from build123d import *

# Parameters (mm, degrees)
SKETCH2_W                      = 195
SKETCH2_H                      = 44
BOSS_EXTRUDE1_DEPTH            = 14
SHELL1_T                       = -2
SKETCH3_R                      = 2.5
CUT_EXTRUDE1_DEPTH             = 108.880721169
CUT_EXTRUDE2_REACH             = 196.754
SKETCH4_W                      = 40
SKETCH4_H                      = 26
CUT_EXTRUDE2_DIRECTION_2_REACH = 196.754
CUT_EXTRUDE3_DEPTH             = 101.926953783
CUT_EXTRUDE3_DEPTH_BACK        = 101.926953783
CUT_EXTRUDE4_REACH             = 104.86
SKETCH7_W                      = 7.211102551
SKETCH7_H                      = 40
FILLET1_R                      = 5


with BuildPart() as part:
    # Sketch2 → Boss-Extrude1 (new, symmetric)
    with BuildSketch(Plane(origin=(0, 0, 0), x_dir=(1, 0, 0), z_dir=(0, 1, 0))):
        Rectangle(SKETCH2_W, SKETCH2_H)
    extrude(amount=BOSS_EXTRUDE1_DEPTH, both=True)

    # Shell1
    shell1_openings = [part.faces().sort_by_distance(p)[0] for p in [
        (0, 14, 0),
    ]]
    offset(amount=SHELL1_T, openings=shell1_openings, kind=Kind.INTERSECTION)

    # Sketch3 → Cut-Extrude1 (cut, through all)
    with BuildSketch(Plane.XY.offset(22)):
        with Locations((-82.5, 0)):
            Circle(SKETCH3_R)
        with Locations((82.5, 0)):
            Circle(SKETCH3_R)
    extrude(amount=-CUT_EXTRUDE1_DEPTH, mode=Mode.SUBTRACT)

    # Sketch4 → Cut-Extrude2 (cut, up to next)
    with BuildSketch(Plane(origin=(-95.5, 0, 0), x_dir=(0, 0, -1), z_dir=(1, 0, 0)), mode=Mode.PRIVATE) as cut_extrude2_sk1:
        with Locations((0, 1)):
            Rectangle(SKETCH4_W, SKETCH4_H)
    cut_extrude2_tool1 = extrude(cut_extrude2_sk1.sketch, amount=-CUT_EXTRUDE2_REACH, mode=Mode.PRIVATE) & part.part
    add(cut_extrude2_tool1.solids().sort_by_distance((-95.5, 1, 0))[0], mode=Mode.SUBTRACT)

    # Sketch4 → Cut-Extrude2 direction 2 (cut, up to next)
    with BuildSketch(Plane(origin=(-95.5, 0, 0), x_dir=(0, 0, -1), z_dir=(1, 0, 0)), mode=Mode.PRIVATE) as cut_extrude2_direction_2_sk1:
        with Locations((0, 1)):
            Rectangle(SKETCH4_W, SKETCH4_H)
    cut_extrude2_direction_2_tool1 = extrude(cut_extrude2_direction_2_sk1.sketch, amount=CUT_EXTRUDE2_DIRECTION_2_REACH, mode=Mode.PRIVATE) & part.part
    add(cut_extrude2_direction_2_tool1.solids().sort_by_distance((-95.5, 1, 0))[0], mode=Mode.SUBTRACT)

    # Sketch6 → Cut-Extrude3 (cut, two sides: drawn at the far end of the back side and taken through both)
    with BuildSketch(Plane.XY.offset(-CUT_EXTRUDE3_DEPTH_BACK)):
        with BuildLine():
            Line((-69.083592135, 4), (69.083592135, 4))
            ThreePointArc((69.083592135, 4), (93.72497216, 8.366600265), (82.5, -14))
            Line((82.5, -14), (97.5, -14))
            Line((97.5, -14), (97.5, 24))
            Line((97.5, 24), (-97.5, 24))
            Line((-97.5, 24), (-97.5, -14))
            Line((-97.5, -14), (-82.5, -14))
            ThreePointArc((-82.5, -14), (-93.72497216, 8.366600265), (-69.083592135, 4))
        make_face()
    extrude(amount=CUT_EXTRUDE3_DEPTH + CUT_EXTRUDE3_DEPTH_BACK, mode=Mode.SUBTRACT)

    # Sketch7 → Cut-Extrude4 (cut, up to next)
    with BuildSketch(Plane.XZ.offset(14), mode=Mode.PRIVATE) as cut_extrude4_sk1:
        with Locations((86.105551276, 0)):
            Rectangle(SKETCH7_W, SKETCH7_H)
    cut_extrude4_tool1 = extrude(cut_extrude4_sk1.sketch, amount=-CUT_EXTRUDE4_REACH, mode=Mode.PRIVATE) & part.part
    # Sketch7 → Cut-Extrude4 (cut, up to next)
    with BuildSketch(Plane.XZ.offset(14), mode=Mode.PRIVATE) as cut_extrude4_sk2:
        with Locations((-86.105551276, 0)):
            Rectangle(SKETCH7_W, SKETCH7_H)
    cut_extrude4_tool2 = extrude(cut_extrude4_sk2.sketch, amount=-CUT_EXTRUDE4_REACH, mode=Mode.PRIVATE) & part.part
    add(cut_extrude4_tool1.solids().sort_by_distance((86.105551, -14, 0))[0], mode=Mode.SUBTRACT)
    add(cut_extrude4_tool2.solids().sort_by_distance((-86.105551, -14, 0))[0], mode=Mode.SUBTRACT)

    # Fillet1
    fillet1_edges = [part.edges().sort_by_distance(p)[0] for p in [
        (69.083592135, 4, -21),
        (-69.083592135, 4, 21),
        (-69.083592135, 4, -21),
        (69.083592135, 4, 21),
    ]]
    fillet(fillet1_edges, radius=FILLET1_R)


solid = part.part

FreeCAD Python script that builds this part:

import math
import FreeCAD as App
import Part
import Sketcher


def edges_at(feature, points):
    """Names of the edges that pass closest to the given points."""
    edges = feature.Shape.Edges
    near = lambda p: min(range(len(edges)), key=lambda i: edges[i].distToShape(Part.Vertex(*p))[0])
    return sorted({f"Edge{near(p) + 1}" for p in points})


def faces_at(feature, points):
    """Names of the faces that lie closest to the given points."""
    faces = feature.Shape.Faces
    near = lambda p: min(range(len(faces)), key=lambda i: faces[i].distToShape(Part.Vertex(*p))[0])
    return sorted({f"Face{near(p) + 1}" for p in points})

doc = App.newDocument("Part")
body = doc.addObject("PartDesign::Body", "Body")

# Sketch on XZ plane
sketch1 = body.newObject("Sketcher::SketchObject", "Sketch")
sketch1.AttachmentSupport = (doc.getObject("XZ_Plane"), [""])
sketch1.MapMode = "FlatFace"
sketch1.addGeometry([
    Part.LineSegment(App.Vector(-97.5, -22, 0), App.Vector(-97.5, 22, 0)),
    Part.LineSegment(App.Vector(-97.5, 22, 0), App.Vector(97.5, 22, 0)),
    Part.LineSegment(App.Vector(97.5, 22, 0), App.Vector(97.5, -22, 0)),
    Part.LineSegment(App.Vector(97.5, -22, 0), App.Vector(-97.5, -22, 0)),
], False)
sketch1.addConstraint([
    Sketcher.Constraint("Coincident", 0, 2, 1, 1),
    Sketcher.Constraint("Coincident", 1, 2, 2, 1),
    Sketcher.Constraint("Coincident", 2, 2, 3, 1),
    Sketcher.Constraint("Coincident", 3, 2, 0, 1),
    Sketcher.Constraint("Vertical", 0),
    Sketcher.Constraint("Horizontal", 1),
    Sketcher.Constraint("Vertical", 2),
    Sketcher.Constraint("Horizontal", 3),
    Sketcher.Constraint("Symmetric", 0, 2, 2, 2, -1, 1),
    Sketcher.Constraint("DistanceX", 1, 1, 1, 2, 195.0),
    Sketcher.Constraint("DistanceY", 0, 1, 0, 2, 44.0),
])
pad1 = body.newObject("PartDesign::Pad", "Pad")
pad1.Profile = sketch1
pad1.Length = 28
pad1.Midplane = True
doc.recompute()

thickness = body.newObject("PartDesign::Thickness", "Thickness")
thickness.Base = (pad1, faces_at(pad1, [(0, 14, 0)]))
thickness.Value = 2
thickness.Reversed = True
thickness.Join = "Intersection"

# Sketch on XY plane
sketch2 = body.newObject("Sketcher::SketchObject", "Sketch001")
sketch2.AttachmentSupport = (doc.getObject("XY_Plane"), [""])
sketch2.MapMode = "FlatFace"
sketch2.AttachmentOffset = App.Placement(App.Vector(0, 0, 22), App.Rotation())
sketch2.addGeometry([
    Part.Circle(App.Vector(-82.5, 0, 0), App.Vector(0, 0, 1), 2.5),
    Part.Circle(App.Vector(82.5, 0, 0), App.Vector(0, 0, 1), 2.5),
], False)
sketch2.addConstraint([
    Sketcher.Constraint("Equal", 0, 1),
    Sketcher.Constraint("Symmetric", 0, 3, 1, 3, -1, 1),
    Sketcher.Constraint("PointOnObject", 0, 3, -1),
    Sketcher.Constraint("Diameter", 0, 5.0),
    Sketcher.Constraint("DistanceX", 0, 3, 1, 3, 165.0),
])
pocket1 = body.newObject("PartDesign::Pocket", "Pocket")
pocket1.Profile = sketch2
pocket1.Type = "ThroughAll"

# Sketch on YZ plane
sketch3 = body.newObject("Sketcher::SketchObject", "Sketch002")
sketch3.AttachmentSupport = (doc.getObject("YZ_Plane"), [""])
sketch3.MapMode = "FlatFace"
sketch3.AttachmentOffset = App.Placement(App.Vector(0, 0, -95.5), App.Rotation())
sketch3.addGeometry([
    Part.LineSegment(App.Vector(14, 20, 0), App.Vector(-12, 20, 0)),
    Part.LineSegment(App.Vector(-12, 20, 0), App.Vector(-12, -20, 0)),
    Part.LineSegment(App.Vector(-12, -20, 0), App.Vector(14, -20, 0)),
    Part.LineSegment(App.Vector(14, -20, 0), App.Vector(14, 20, 0)),
], False)
sketch3.addConstraint([
    Sketcher.Constraint("Coincident", 0, 2, 1, 1),
    Sketcher.Constraint("Coincident", 1, 2, 2, 1),
    Sketcher.Constraint("Coincident", 2, 2, 3, 1),
    Sketcher.Constraint("Coincident", 3, 2, 0, 1),
    Sketcher.Constraint("Horizontal", 0),
    Sketcher.Constraint("Vertical", 1),
    Sketcher.Constraint("Horizontal", 2),
    Sketcher.Constraint("Vertical", 3),
    Sketcher.Constraint("DistanceX", 0, 2, 0, 1, 26.0),
    Sketcher.Constraint("DistanceY", 1, 2, 1, 1, 40.0),
    Sketcher.Constraint("DistanceX", 0, 2, -1, 1, 12.0),
    Sketcher.Constraint("DistanceY", -1, 1, 0, 2, 20.0),
])
pocket2 = body.newObject("PartDesign::Pocket", "Pocket001")
pocket2.Profile = sketch3
pocket2.Type = "UpToFirst"

# Sketch on YZ plane
sketch4 = body.newObject("Sketcher::SketchObject", "Sketch003")
sketch4.AttachmentSupport = (doc.getObject("YZ_Plane"), [""])
sketch4.MapMode = "FlatFace"
sketch4.AttachmentOffset = App.Placement(App.Vector(0, 0, -95.5), App.Rotation())
sketch4.addGeometry([
    Part.LineSegment(App.Vector(14, 20, 0), App.Vector(-12, 20, 0)),
    Part.LineSegment(App.Vector(-12, 20, 0), App.Vector(-12, -20, 0)),
    Part.LineSegment(App.Vector(-12, -20, 0), App.Vector(14, -20, 0)),
    Part.LineSegment(App.Vector(14, -20, 0), App.Vector(14, 20, 0)),
], False)
sketch4.addConstraint([
    Sketcher.Constraint("Coincident", 0, 2, 1, 1),
    Sketcher.Constraint("Coincident", 1, 2, 2, 1),
    Sketcher.Constraint("Coincident", 2, 2, 3, 1),
    Sketcher.Constraint("Coincident", 3, 2, 0, 1),
    Sketcher.Constraint("Horizontal", 0),
    Sketcher.Constraint("Vertical", 1),
    Sketcher.Constraint("Horizontal", 2),
    Sketcher.Constraint("Vertical", 3),
    Sketcher.Constraint("DistanceX", 0, 2, 0, 1, 26.0),
    Sketcher.Constraint("DistanceY", 1, 2, 1, 1, 40.0),
    Sketcher.Constraint("DistanceX", 0, 2, -1, 1, 12.0),
    Sketcher.Constraint("DistanceY", -1, 1, 0, 2, 20.0),
])
pocket3 = body.newObject("PartDesign::Pocket", "Pocket002")
pocket3.Profile = sketch4
pocket3.Length = 193
pocket3.Reversed = True

# Sketch on XY plane
sketch5 = body.newObject("Sketcher::SketchObject", "Sketch004")
sketch5.AttachmentSupport = (doc.getObject("XY_Plane"), [""])
sketch5.MapMode = "FlatFace"
sketch5.addGeometry([
    Part.LineSegment(App.Vector(-69.083592, 4, 0), App.Vector(69.083592, 4, 0)),  # 0
    Part.ArcOfCircle(Part.Circle(App.Vector(82.5, 0, 0), App.Vector(0, 0, 1), 14), math.radians(-90), math.radians(163.39845)),  # 1
    Part.LineSegment(App.Vector(82.5, -14, 0), App.Vector(97.5, -14, 0)),  # 2
    Part.LineSegment(App.Vector(97.5, -14, 0), App.Vector(97.5, 24, 0)),  # 3
    Part.LineSegment(App.Vector(97.5, 24, 0), App.Vector(-97.5, 24, 0)),  # 4
    Part.LineSegment(App.Vector(-97.5, 24, 0), App.Vector(-97.5, -14, 0)),  # 5
    Part.LineSegment(App.Vector(-97.5, -14, 0), App.Vector(-82.5, -14, 0)),  # 6
    Part.ArcOfCircle(Part.Circle(App.Vector(-82.5, 0, 0), App.Vector(0, 0, 1), 14), math.radians(16.60155), math.radians(270)),  # 7
], False)
sketch5.addConstraint([
    Sketcher.Constraint("Coincident", 0, 2, 1, 2),
    Sketcher.Constraint("Tangent", 1, 1, 2, 1),
    Sketcher.Constraint("Coincident", 2, 2, 3, 1),
    Sketcher.Constraint("Coincident", 3, 2, 4, 1),
    Sketcher.Constraint("Coincident", 4, 2, 5, 1),
    Sketcher.Constraint("Coincident", 5, 2, 6, 1),
    Sketcher.Constraint("Tangent", 6, 2, 7, 2),
    Sketcher.Constraint("Coincident", 7, 1, 0, 1),
    Sketcher.Constraint("Horizontal", 0),
    Sketcher.Constraint("Horizontal", 2),
    Sketcher.Constraint("Vertical", 3),
    Sketcher.Constraint("Horizontal", 4),
    Sketcher.Constraint("Vertical", 5),
    Sketcher.Constraint("Horizontal", 6),
    Sketcher.Constraint("Equal", 1, 7),
    Sketcher.Constraint("Symmetric", 1, 3, 7, 3, -1, 1),
    Sketcher.Constraint("Symmetric", 2, 2, 5, 2, -2),
    Sketcher.Constraint("Radius", 1, 14.0),
    Sketcher.Constraint("DistanceX", 2, 1, 2, 2, 15.0),
    Sketcher.Constraint("DistanceX", 4, 2, 4, 1, 195.0),
    Sketcher.Constraint("DistanceY", 3, 1, 3, 2, 38.0),
    Sketcher.Constraint("DistanceY", -1, 1, 0, 2, 4.0),
])
pocket4 = body.newObject("PartDesign::Pocket", "Pocket003")
pocket4.Profile = sketch5
pocket4.Type = "ThroughAll"
pocket4.Midplane = True

# Sketch on XZ plane
sketch6 = body.newObject("Sketcher::SketchObject", "Sketch005")
sketch6.AttachmentSupport = (doc.getObject("XZ_Plane"), [""])
sketch6.MapMode = "FlatFace"
sketch6.AttachmentOffset = App.Placement(App.Vector(0, 0, 14), App.Rotation())
sketch6.addGeometry([
    Part.LineSegment(App.Vector(82.5, 20, 0), App.Vector(82.5, -20, 0)),
    Part.LineSegment(App.Vector(82.5, -20, 0), App.Vector(89.711103, -20, 0)),
    Part.LineSegment(App.Vector(89.711103, -20, 0), App.Vector(89.711103, 20, 0)),
    Part.LineSegment(App.Vector(89.711103, 20, 0), App.Vector(82.5, 20, 0)),
], False)
sketch6.addConstraint([
    Sketcher.Constraint("Coincident", 0, 2, 1, 1),
    Sketcher.Constraint("Coincident", 1, 2, 2, 1),
    Sketcher.Constraint("Coincident", 2, 2, 3, 1),
    Sketcher.Constraint("Coincident", 3, 2, 0, 1),
    Sketcher.Constraint("Vertical", 0),
    Sketcher.Constraint("Horizontal", 1),
    Sketcher.Constraint("Vertical", 2),
    Sketcher.Constraint("Horizontal", 3),
    Sketcher.Constraint("DistanceY", 0, 2, 0, 1, 40.0),
    Sketcher.Constraint("DistanceY", 0, 2, -1, 1, 20.0),
    Sketcher.Constraint("DistanceX", -1, 1, 0, 2, 82.5),
    Sketcher.Constraint("DistanceX", 1, 1, 1, 2, 7.211103),
])
pocket5 = body.newObject("PartDesign::Pocket", "Pocket004")
pocket5.Profile = sketch6
pocket5.Length = 2

# Sketch on XZ plane
sketch7 = body.newObject("Sketcher::SketchObject", "Sketch006")
sketch7.AttachmentSupport = (doc.getObject("XZ_Plane"), [""])
sketch7.MapMode = "FlatFace"
sketch7.AttachmentOffset = App.Placement(App.Vector(0, 0, 14), App.Rotation())
sketch7.addGeometry([
    Part.LineSegment(App.Vector(-89.711103, 20, 0), App.Vector(-89.711103, -20, 0)),
    Part.LineSegment(App.Vector(-89.711103, -20, 0), App.Vector(-82.5, -20, 0)),
    Part.LineSegment(App.Vector(-82.5, -20, 0), App.Vector(-82.5, 20, 0)),
    Part.LineSegment(App.Vector(-82.5, 20, 0), App.Vector(-89.711103, 20, 0)),
], False)
sketch7.addConstraint([
    Sketcher.Constraint("Coincident", 0, 2, 1, 1),
    Sketcher.Constraint("Coincident", 1, 2, 2, 1),
    Sketcher.Constraint("Coincident", 2, 2, 3, 1),
    Sketcher.Constraint("Coincident", 3, 2, 0, 1),
    Sketcher.Constraint("Vertical", 0),
    Sketcher.Constraint("Horizontal", 1),
    Sketcher.Constraint("Vertical", 2),
    Sketcher.Constraint("Horizontal", 3),
    Sketcher.Constraint("DistanceY", 0, 2, 0, 1, 40.0),
    Sketcher.Constraint("DistanceY", 0, 2, -1, 1, 20.0),
    Sketcher.Constraint("DistanceX", 1, 2, -1, 1, 82.5),
    Sketcher.Constraint("DistanceX", 1, 1, 1, 2, 7.211103),
])
pocket6 = body.newObject("PartDesign::Pocket", "Pocket005")
pocket6.Profile = sketch7
pocket6.Length = 2
doc.recompute()

fillet = body.newObject("PartDesign::Fillet", "Fillet")
fillet.Base = (pocket6, edges_at(pocket6, [
    (69.084, 4, -21),
    (-69.084, 4, 21),
    (-69.084, 4, -21),
    (69.084, 4, 21),
]))
fillet.Radius = 5

doc.recompute()
